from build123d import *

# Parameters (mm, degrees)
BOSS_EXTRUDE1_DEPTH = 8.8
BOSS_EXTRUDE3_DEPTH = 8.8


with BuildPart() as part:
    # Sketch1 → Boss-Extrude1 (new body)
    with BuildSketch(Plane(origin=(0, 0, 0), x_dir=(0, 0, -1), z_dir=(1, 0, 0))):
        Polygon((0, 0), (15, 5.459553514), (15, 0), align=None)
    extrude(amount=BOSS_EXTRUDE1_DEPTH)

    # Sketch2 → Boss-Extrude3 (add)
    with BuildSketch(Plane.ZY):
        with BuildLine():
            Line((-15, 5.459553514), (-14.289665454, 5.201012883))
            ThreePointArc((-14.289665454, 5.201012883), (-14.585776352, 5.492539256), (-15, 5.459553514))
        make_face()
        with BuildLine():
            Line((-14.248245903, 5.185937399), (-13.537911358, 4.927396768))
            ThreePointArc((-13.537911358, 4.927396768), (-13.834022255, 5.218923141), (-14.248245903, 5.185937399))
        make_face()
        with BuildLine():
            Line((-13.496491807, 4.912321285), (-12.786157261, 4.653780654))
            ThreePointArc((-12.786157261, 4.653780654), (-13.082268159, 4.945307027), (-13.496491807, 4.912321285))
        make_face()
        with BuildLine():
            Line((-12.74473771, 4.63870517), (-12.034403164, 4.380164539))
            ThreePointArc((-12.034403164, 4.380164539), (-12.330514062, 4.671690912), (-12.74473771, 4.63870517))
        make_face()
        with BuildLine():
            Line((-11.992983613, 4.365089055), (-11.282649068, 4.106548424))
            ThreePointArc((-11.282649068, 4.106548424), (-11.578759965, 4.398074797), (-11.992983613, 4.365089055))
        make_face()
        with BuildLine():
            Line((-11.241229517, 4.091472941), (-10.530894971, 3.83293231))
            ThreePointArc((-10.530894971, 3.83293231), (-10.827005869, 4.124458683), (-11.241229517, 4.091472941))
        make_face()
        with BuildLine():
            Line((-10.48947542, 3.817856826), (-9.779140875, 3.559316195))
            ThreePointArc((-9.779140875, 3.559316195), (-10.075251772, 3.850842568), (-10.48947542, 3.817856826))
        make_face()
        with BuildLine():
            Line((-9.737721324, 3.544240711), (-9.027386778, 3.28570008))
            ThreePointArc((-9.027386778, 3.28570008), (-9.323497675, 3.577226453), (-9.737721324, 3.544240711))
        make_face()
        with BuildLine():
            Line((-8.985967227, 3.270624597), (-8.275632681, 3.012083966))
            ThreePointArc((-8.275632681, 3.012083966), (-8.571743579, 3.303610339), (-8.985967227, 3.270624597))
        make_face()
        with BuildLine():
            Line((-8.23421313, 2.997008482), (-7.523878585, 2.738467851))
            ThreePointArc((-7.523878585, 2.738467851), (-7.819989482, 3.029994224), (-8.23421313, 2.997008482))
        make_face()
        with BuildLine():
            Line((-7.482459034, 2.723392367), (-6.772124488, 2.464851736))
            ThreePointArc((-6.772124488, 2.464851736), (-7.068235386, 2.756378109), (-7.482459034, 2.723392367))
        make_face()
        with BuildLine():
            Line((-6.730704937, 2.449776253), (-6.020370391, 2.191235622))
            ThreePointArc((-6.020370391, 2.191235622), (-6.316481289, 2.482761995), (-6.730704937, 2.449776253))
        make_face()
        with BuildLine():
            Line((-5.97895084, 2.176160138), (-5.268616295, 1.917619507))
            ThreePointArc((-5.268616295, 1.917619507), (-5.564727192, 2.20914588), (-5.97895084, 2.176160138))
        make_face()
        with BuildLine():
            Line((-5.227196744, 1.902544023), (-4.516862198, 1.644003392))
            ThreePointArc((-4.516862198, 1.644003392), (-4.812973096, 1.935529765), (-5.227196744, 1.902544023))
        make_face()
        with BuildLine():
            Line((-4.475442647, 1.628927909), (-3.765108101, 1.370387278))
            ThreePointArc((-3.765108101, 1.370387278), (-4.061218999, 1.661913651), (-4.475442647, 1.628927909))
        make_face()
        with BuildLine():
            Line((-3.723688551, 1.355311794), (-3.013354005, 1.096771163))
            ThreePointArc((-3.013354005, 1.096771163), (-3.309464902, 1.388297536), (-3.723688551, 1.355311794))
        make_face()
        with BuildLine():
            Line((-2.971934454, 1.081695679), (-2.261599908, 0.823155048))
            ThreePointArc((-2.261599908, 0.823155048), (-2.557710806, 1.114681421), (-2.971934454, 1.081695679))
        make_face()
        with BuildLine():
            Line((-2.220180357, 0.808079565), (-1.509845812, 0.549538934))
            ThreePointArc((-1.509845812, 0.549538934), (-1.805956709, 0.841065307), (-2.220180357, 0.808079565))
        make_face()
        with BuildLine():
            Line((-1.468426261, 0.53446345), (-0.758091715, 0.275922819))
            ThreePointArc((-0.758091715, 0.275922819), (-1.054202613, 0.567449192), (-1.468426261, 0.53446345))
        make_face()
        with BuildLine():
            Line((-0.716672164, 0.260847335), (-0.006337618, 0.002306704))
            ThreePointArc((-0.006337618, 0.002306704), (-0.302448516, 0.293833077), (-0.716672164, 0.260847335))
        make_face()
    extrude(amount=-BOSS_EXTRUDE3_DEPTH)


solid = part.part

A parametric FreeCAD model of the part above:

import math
import FreeCAD as App
import Part
import Sketcher
Q = App.Units.Quantity


def add_polygon(sketch, points):
    """Adds a closed chain of lines whose ends are joined by coincident constraints."""
    first, n = sketch.GeometryCount, len(points)
    for a, b in zip(points, points[1:] + points[:1]):
        sketch.addGeometry(Part.LineSegment(App.Vector(*a, 0), App.Vector(*b, 0)), False)
    for i in range(n):
        sketch.addConstraint(Sketcher.Constraint("Coincident", first + i, 2, first + (i + 1) % n, 1))

doc = App.newDocument("Part")
body = doc.addObject("PartDesign::Body", "Body")

sketch1 = body.newObject("Sketcher::SketchObject", "Sketch")
sketch1.AttachmentSupport = (doc.getObject("YZ_Plane"), [""])
sketch1.MapMode = "FlatFace"
add_polygon(sketch1, [(5, -15), (0, 0), (0, -15)])
sketch1.addConstraint(Sketcher.Constraint("Vertical", 1))
sketch1.addConstraint(Sketcher.Constraint("Horizontal", 2))
sketch1.addConstraint(Sketcher.Constraint("Coincident", 0, 2, -1, 1))
sketch1.addConstraint(Sketcher.Constraint("DistanceY", 1, 2, 1, 1, Q("15 mm")))
sketch1.addConstraint(Sketcher.Constraint("Angle", 0, Q("110 deg")))
pad1 = body.newObject("PartDesign::Pad", "Pad")
pad1.Profile = sketch1
pad1.Length = 8.8

sketch2 = body.newObject("Sketcher::SketchObject", "Sketch001")
sketch2.AttachmentSupport = (doc.getObject("YZ_Plane"), [""])
sketch2.MapMode = "FlatFace"
sketch2.addGeometry(Part.LineSegment(App.Vector(5.46, -15, 0), App.Vector(5.2, -14.29, 0)), False)
sketch2.addGeometry(Part.ArcOfCircle(Part.Circle(App.Vector(5.02, -14.76, 0), App.Vector(0, 0, 1), 0.5), math.radians(-29), math.radians(69)), False)
sketch2.addGeometry(Part.LineSegment(App.Vector(5.19, -14.25, 0), App.Vector(4.93, -13.54, 0)), False)
sketch2.addGeometry(Part.ArcOfCircle(Part.Circle(App.Vector(4.75, -14.01, 0), App.Vector(0, 0, 1), 0.5), math.radians(-29), math.radians(69)), False)
sketch2.addGeometry(Part.LineSegment(App.Vector(4.91, -13.5, 0), App.Vector(4.65, -12.79, 0)), False)
sketch2.addGeometry(Part.ArcOfCircle(Part.Circle(App.Vector(4.48, -13.25, 0), App.Vector(0, 0, 1), 0.5), math.radians(-29), math.radians(69)), False)
sketch2.addGeometry(Part.LineSegment(App.Vector(4.64, -12.74, 0), App.Vector(4.38, -12.03, 0)), False)
sketch2.addGeometry(Part.ArcOfCircle(Part.Circle(App.Vector(4.2, -12.5, 0), App.Vector(0, 0, 1), 0.5), math.radians(-29), math.radians(69)), False)
sketch2.addGeometry(Part.LineSegment(App.Vector(4.37, -11.99, 0), App.Vector(4.11, -11.28, 0)), False)
sketch2.addGeometry(Part.ArcOfCircle(Part.Circle(App.Vector(3.93, -11.75, 0), App.Vector(0, 0, 1), 0.5), math.radians(-29), math.radians(69)), False)
sketch2.addGeometry(Part.LineSegment(App.Vector(4.09, -11.24, 0), App.Vector(3.83, -10.53, 0)), False)
sketch2.addGeometry(Part.ArcOfCircle(Part.Circle(App.Vector(3.65, -11, 0), App.Vector(0, 0, 1), 0.5), math.radians(-29), math.radians(69)), False)
sketch2.addGeometry(Part.LineSegment(App.Vector(3.82, -10.49, 0), App.Vector(3.56, -9.78, 0)), False)
sketch2.addGeometry(Part.ArcOfCircle(Part.Circle(App.Vector(3.38, -10.25, 0), App.Vector(0, 0, 1), 0.5), math.radians(-29), math.radians(69)), False)
sketch2.addGeometry(Part.LineSegment(App.Vector(3.54, -9.74, 0), App.Vector(3.29, -9.03, 0)), False)
sketch2.addGeometry(Part.ArcOfCircle(Part.Circle(App.Vector(3.11, -9.49, 0), App.Vector(0, 0, 1), 0.5), math.radians(-29), math.radians(69)), False)
sketch2.addGeometry(Part.LineSegment(App.Vector(3.27, -8.99, 0), App.Vector(3.01, -8.28, 0)), False)
sketch2.addGeometry(Part.ArcOfCircle(Part.Circle(App.Vector(2.83, -8.74, 0), App.Vector(0, 0, 1), 0.5), math.radians(-29), math.radians(69)), False)
sketch2.addGeometry(Part.LineSegment(App.Vector(3, -8.23, 0), App.Vector(2.74, -7.52, 0)), False)
sketch2.addGeometry(Part.ArcOfCircle(Part.Circle(App.Vector(2.56, -7.99, 0), App.Vector(0, 0, 1), 0.5), math.radians(-29), math.radians(69)), False)
sketch2.addGeometry(Part.LineSegment(App.Vector(2.72, -7.48, 0), App.Vector(2.46, -6.77, 0)), False)
sketch2.addGeometry(Part.ArcOfCircle(Part.Circle(App.Vector(2.29, -7.24, 0), App.Vector(0, 0, 1), 0.5), math.radians(-29), math.radians(69)), False)
sketch2.addGeometry(Part.LineSegment(App.Vector(2.45, -6.73, 0), App.Vector(2.19, -6.02, 0)), False)
sketch2.addGeometry(Part.ArcOfCircle(Part.Circle(App.Vector(2.01, -6.49, 0), App.Vector(0, 0, 1), 0.5), math.radians(-29), math.radians(69)), False)
sketch2.addGeometry(Part.LineSegment(App.Vector(2.18, -5.98, 0), App.Vector(1.92, -5.27, 0)), False)
sketch2.addGeometry(Part.ArcOfCircle(Part.Circle(App.Vector(1.74, -5.74, 0), App.Vector(0, 0, 1), 0.5), math.radians(-29), math.radians(69)), False)
sketch2.addGeometry(Part.LineSegment(App.Vector(1.9, -5.23, 0), App.Vector(1.64, -4.52, 0)), False)
sketch2.addGeometry(Part.ArcOfCircle(Part.Circle(App.Vector(1.47, -4.98, 0), App.Vector(0, 0, 1), 0.5), math.radians(-29), math.radians(69)), False)
sketch2.addGeometry(Part.LineSegment(App.Vector(1.63, -4.48, 0), App.Vector(1.37, -3.77, 0)), False)
sketch2.addGeometry(Part.ArcOfCircle(Part.Circle(App.Vector(1.19, -4.23, 0), App.Vector(0, 0, 1), 0.5), math.radians(-29), math.radians(69)), False)
sketch2.addGeometry(Part.LineSegment(App.Vector(1.36, -3.72, 0), App.Vector(1.1, -3.01, 0)), False)
sketch2.addGeometry(Part.ArcOfCircle(Part.Circle(App.Vector(0.92, -3.48, 0), App.Vector(0, 0, 1), 0.5), math.radians(-29), math.radians(69)), False)
sketch2.addGeometry(Part.LineSegment(App.Vector(1.08, -2.97, 0), App.Vector(0.82, -2.26, 0)), False)
sketch2.addGeometry(Part.ArcOfCircle(Part.Circle(App.Vector(0.64, -2.73, 0), App.Vector(0, 0, 1), 0.5), math.radians(-29), math.radians(69)), False)
sketch2.addGeometry(Part.LineSegment(App.Vector(0.81, -2.22, 0), App.Vector(0.55, -1.51, 0)), False)
sketch2.addGeometry(Part.ArcOfCircle(Part.Circle(App.Vector(0.37, -1.98, 0), App.Vector(0, 0, 1), 0.5), math.radians(-29), math.radians(69)), False)
sketch2.addGeometry(Part.LineSegment(App.Vector(0.53, -1.47, 0), App.Vector(0.28, -0.76, 0)), False)
sketch2.addGeometry(Part.ArcOfCircle(Part.Circle(App.Vector(0.1, -1.23, 0), App.Vector(0, 0, 1), 0.5), math.radians(-29), math.radians(69)), False)
sketch2.addGeometry(Part.LineSegment(App.Vector(0.26, -0.72, 0), App.Vector(0, -0.01, 0)), False)
sketch2.addGeometry(Part.ArcOfCircle(Part.Circle(App.Vector(-0.18, -0.47, 0), App.Vector(0, 0, 1), 0.5), math.radians(-29), math.radians(69)), False)
sketch2.addConstraint(Sketcher.Constraint("Coincident", 0, 1, 1, 1))
sketch2.addConstraint(Sketcher.Constraint("Coincident", 1, 2, 0, 2))
sketch2.addConstraint(Sketcher.Constraint("Coincident", 2, 1, 3, 1))
sketch2.addConstraint(Sketcher.Constraint("Coincident", 3, 2, 2, 2))
sketch2.addConstraint(Sketcher.Constraint("Coincident", 4, 1, 5, 1))
sketch2.addConstraint(Sketcher.Constraint("Coincident", 5, 2, 4, 2))
sketch2.addConstraint(Sketcher.Constraint("Coincident", 6, 1, 7, 1))
sketch2.addConstraint(Sketcher.Constraint("Coincident", 7, 2, 6, 2))
sketch2.addConstraint(Sketcher.Constraint("Coincident", 8, 1, 9, 1))
sketch2.addConstraint(Sketcher.Constraint("Coincident", 9, 2, 8, 2))
sketch2.addConstraint(Sketcher.Constraint("Coincident", 10, 1, 11, 1))
sketch2.addConstraint(Sketcher.Constraint("Coincident", 11, 2, 10, 2))
sketch2.addConstraint(Sketcher.Constraint("Coincident", 12, 1, 13, 1))
sketch2.addConstraint(Sketcher.Constraint("Coincident", 13, 2, 12, 2))
sketch2.addConstraint(Sketcher.Constraint("Coincident", 14, 1, 15, 1))
sketch2.addConstraint(Sketcher.Constraint("Coincident", 15, 2, 14, 2))
sketch2.addConstraint(Sketcher.Constraint("Coincident", 16, 1, 17, 1))
sketch2.addConstraint(Sketcher.Constraint("Coincident", 17, 2, 16, 2))
sketch2.addConstraint(Sketcher.Constraint("Coincident", 18, 1, 19, 1))
sketch2.addConstraint(Sketcher.Constraint("Coincident", 19, 2, 18, 2))
sketch2.addConstraint(Sketcher.Constraint("Coincident", 20, 1, 21, 1))
sketch2.addConstraint(Sketcher.Constraint("Coincident", 21, 2, 20, 2))
sketch2.addConstraint(Sketcher.Constraint("Coincident", 22, 1, 23, 1))
sketch2.addConstraint(Sketcher.Constraint("Coincident", 23, 2, 22, 2))
sketch2.addConstraint(Sketcher.Constraint("Coincident", 24, 1, 25, 1))
sketch2.addConstraint(Sketcher.Constraint("Coincident", 25, 2, 24, 2))
sketch2.addConstraint(Sketcher.Constraint("Coincident", 26, 1, 27, 1))
sketch2.addConstraint(Sketcher.Constraint("Coincident", 27, 2, 26, 2))
sketch2.addConstraint(Sketcher.Constraint("Coincident", 28, 1, 29, 1))
sketch2.addConstraint(Sketcher.Constraint("Coincident", 29, 2, 28, 2))
sketch2.addConstraint(Sketcher.Constraint("Coincident", 30, 1, 31, 1))
sketch2.addConstraint(Sketcher.Constraint("Coincident", 31, 2, 30, 2))
sketch2.addConstraint(Sketcher.Constraint("Coincident", 32, 1, 33, 1))
sketch2.addConstraint(Sketcher.Constraint("Coincident", 33, 2, 32, 2))
sketch2.addConstraint(Sketcher.Constraint("Coincident", 34, 1, 35, 1))
sketch2.addConstraint(Sketcher.Constraint("Coincident", 35, 2, 34, 2))
sketch2.addConstraint(Sketcher.Constraint("Coincident", 36, 1, 37, 1))
sketch2.addConstraint(Sketcher.Constraint("Coincident", 37, 2, 36, 2))
sketch2.addConstraint(Sketcher.Constraint("Coincident", 38, 1, 39, 1))
sketch2.addConstraint(Sketcher.Constraint("Coincident", 39, 2, 38, 2))
sketch2.addConstraint(Sketcher.Constraint("Equal", 1, 3))
sketch2.addConstraint(Sketcher.Constraint("Equal", 3, 5))
sketch2.addConstraint(Sketcher.Constraint("Equal", 5, 7))
sketch2.addConstraint(Sketcher.Constraint("Equal", 7, 9))
sketch2.addConstraint(Sketcher.Constraint("Equal", 9, 11))
sketch2.addConstraint(Sketcher.Constraint("Equal", 11, 13))
sketch2.addConstraint(Sketcher.Constraint("Equal", 13, 15))
sketch2.addConstraint(Sketcher.Constraint("Equal", 15, 17))
sketch2.addConstraint(Sketcher.Constraint("Equal", 17, 19))
sketch2.addConstraint(Sketcher.Constraint("Equal", 19, 21))
sketch2.addConstraint(Sketcher.Constraint("Equal", 21, 23))
sketch2.addConstraint(Sketcher.Constraint("Equal", 23, 25))
sketch2.addConstraint(Sketcher.Constraint("Equal", 25, 27))
sketch2.addConstraint(Sketcher.Constraint("Equal", 27, 29))
sketch2.addConstraint(Sketcher.Constraint("Equal", 29, 31))
sketch2.addConstraint(Sketcher.Constraint("Equal", 31, 33))
sketch2.addConstraint(Sketcher.Constraint("Equal", 33, 35))
sketch2.addConstraint(Sketcher.Constraint("Equal", 35, 37))
sketch2.addConstraint(Sketcher.Constraint("Equal", 37, 39))
sketch2.addConstraint(Sketcher.Constraint("Parallel", 0, 2))
sketch2.addConstraint(Sketcher.Constraint("Parallel", 2, 4))
sketch2.addConstraint(Sketcher.Constraint("Parallel", 4, 6))
sketch2.addConstraint(Sketcher.Constraint("Parallel", 6, 8))
sketch2.addConstraint(Sketcher.Constraint("Parallel", 8, 10))
sketch2.addConstraint(Sketcher.Constraint("Parallel", 10, 12))
sketch2.addConstraint(Sketcher.Constraint("Parallel", 12, 14))
sketch2.addConstraint(Sketcher.Constraint("Parallel", 14, 16))
sketch2.addConstraint(Sketcher.Constraint("Parallel", 16, 18))
sketch2.addConstraint(Sketcher.Constraint("Parallel", 18, 20))
sketch2.addConstraint(Sketcher.Constraint("Parallel", 20, 22))
sketch2.addConstraint(Sketcher.Constraint("Parallel", 22, 24))
sketch2.addConstraint(Sketcher.Constraint("Parallel", 24, 26))
sketch2.addConstraint(Sketcher.Constraint("Parallel", 26, 28))
sketch2.addConstraint(Sketcher.Constraint("Parallel", 28, 30))
sketch2.addConstraint(Sketcher.Constraint("Parallel", 30, 32))
sketch2.addConstraint(Sketcher.Constraint("Parallel", 32, 34))
sketch2.addConstraint(Sketcher.Constraint("Parallel", 34, 36))
sketch2.addConstraint(Sketcher.Constraint("Parallel", 36, 38))
sketch2.addConstraint(Sketcher.Constraint("Equal", 0, 2))
sketch2.addConstraint(Sketcher.Constraint("Equal", 2, 4))
sketch2.addConstraint(Sketcher.Constraint("Equal", 4, 6))
sketch2.addConstraint(Sketcher.Constraint("Equal", 6, 8))
sketch2.addConstraint(Sketcher.Constraint("Equal", 8, 10))
sketch2.addConstraint(Sketcher.Constraint("Equal", 10, 12))
sketch2.addConstraint(Sketcher.Constraint("Equal", 12, 14))
sketch2.addConstraint(Sketcher.Constraint("Equal", 14, 16))
sketch2.addConstraint(Sketcher.Constraint("Equal", 16, 18))
sketch2.addConstraint(Sketcher.Constraint("Equal", 18, 20))
sketch2.addConstraint(Sketcher.Constraint("Equal", 20, 22))
sketch2.addConstraint(Sketcher.Constraint("Equal", 22, 24))
sketch2.addConstraint(Sketcher.Constraint("Equal", 24, 26))
sketch2.addConstraint(Sketcher.Constraint("Equal", 26, 28))
sketch2.addConstraint(Sketcher.Constraint("Equal", 28, 30))
sketch2.addConstraint(Sketcher.Constraint("Equal", 30, 32))
sketch2.addConstraint(Sketcher.Constraint("Equal", 32, 34))
sketch2.addConstraint(Sketcher.Constraint("Equal", 34, 36))
sketch2.addConstraint(Sketcher.Constraint("Equal", 36, 38))
sketch2.addConstraint(Sketcher.Constraint("Radius", 1, Q("0.5 mm")))
sketch2.addConstraint(Sketcher.Constraint("Angle", 0, Q("110 deg")))
sketch2.addConstraint(Sketcher.Constraint("DistanceY", 0, 1, -1, 1, Q("15 mm")))
sketch2.addConstraint(Sketcher.Constraint("DistanceY", 19, 3, -1, 1, Q("7.991 mm")))
sketch2.addConstraint(Sketcher.Constraint("DistanceX", -1, 1, 25, 3, Q("1.7393 mm")))
sketch2.addConstraint(Sketcher.Constraint("DistanceX", -1, 1, 15, 2, Q("3.2857 mm")))
sketch2.addConstraint(Sketcher.Constraint("DistanceY", 33, 2, -1, 1, Q("2.2616 mm")))
sketch2.addConstraint(Sketcher.Constraint("DistanceX", -1, 1, 5, 3, Q("4.475461 mm")))
sketch2.addConstraint(Sketcher.Constraint("DistanceY", 5, 3, -1, 1, Q("13.253278 mm")))
sketch2.addConstraint(Sketcher.Constraint("DistanceX", -1, 1, 9, 3, Q("3.928228 mm")))
sketch2.addConstraint(Sketcher.Constraint("DistanceY", 9, 3, -1, 1, Q("11.74977 mm")))
sketch2.addConstraint(Sketcher.Constraint("DistanceY", 13, 3, -1, 1, Q("10.246262 mm")))
sketch2.addConstraint(Sketcher.Constraint("DistanceX", -1, 1, 15, 3, Q("3.10738 mm")))
sketch2.addConstraint(Sketcher.Constraint("DistanceX", -1, 1, 21, 3, Q("2.286532 mm")))
sketch2.addConstraint(Sketcher.Constraint("DistanceY", 23, 3, -1, 1, Q("6.487491 mm")))
sketch2.addConstraint(Sketcher.Constraint("DistanceY", 29, 3, -1, 1, Q("4.232229 mm")))
sketch2.addConstraint(Sketcher.Constraint("DistanceX", -1, 1, 31, 3, Q("0.918451 mm")))
sketch2.addConstraint(Sketcher.Constraint("DistanceX", -1, 1, 35, 3, Q("0.371219 mm")))
sketch2.addConstraint(Sketcher.Constraint("DistanceY", 39, 3, -1, 1, Q("0.473459 mm")))
sketch2.addConstraint(Sketcher.Constraint("DistanceY", 3, 2, -1, 1, Q("13.537911 mm")))
sketch2.addConstraint(Sketcher.Constraint("DistanceY", 10, 1, -1, 1, Q("11.24123 mm")))
sketch2.addConstraint(Sketcher.Constraint("DistanceY", 14, 1, -1, 1, Q("9.737721 mm")))
sketch2.addConstraint(Sketcher.Constraint("DistanceX", -1, 1, 18, 1, Q("2.997008 mm")))
sketch2.addConstraint(Sketcher.Constraint("DistanceY", 20, 1, -1, 1, Q("7.482459 mm")))
sketch2.addConstraint(Sketcher.Constraint("DistanceY", 24, 1, -1, 1, Q("5.978951 mm")))
sketch2.addConstraint(Sketcher.Constraint("DistanceY", 30, 1, -1, 1, Q("3.723689 mm")))
sketch2.addConstraint(Sketcher.Constraint("DistanceY", 34, 1, -1, 1, Q("2.22018 mm")))
sketch2.addConstraint(Sketcher.Constraint("DistanceY", 37, 2, -1, 1, Q("0.758092 mm")))
sketch2.addConstraint(Sketcher.Constraint("DistanceY", 3, 3, 7, 3, Q("1.503508 mm")))
sketch2.addConstraint(Sketcher.Constraint("DistanceX", 7, 3, 1, 3, Q("0.820848 mm")))
sketch2.addConstraint(Sketcher.Constraint("DistanceX", 9, 3, 3, 3, Q("0.820848 mm")))
sketch2.addConstraint(Sketcher.Constraint("DistanceX", 11, 3, 5, 3, Q("0.820848 mm")))
sketch2.addConstraint(Sketcher.Constraint("DistanceX", 11, 3, 1, 3, Q("1.368081 mm")))
sketch2.addConstraint(Sketcher.Constraint("DistanceX", 13, 3, 7, 3, Q("0.820848 mm")))
sketch2.addConstraint(Sketcher.Constraint("DistanceY", 13, 3, 17, 3, Q("1.503508 mm")))
sketch2.addConstraint(Sketcher.Constraint("DistanceX", 17, 3, 11, 3, Q("0.820848 mm")))
sketch2.addConstraint(Sketcher.Constraint("DistanceX", 23, 3, 17, 3, Q("0.820848 mm")))
sketch2.addConstraint(Sketcher.Constraint("DistanceY", 23, 3, 27, 3, Q("1.503508 mm")))
sketch2.addConstraint(Sketcher.Constraint("DistanceX", 27, 3, 21, 3, Q("0.820848 mm")))
sketch2.addConstraint(Sketcher.Constraint("DistanceX", 29, 3, 23, 3, Q("0.820848 mm")))
sketch2.addConstraint(Sketcher.Constraint("DistanceX", 33, 3, 27, 3, Q("0.820848 mm")))
sketch2.addConstraint(Sketcher.Constraint("DistanceX", 37, 3, 31, 3, Q("0.820848 mm")))
sketch2.addConstraint(Sketcher.Constraint("DistanceX", 39, 3, 33, 3, Q("0.820848 mm")))
pad2 = body.newObject("PartDesign::Pad", "Pad001")
pad2.Profile = sketch2
pad2.Length = 8.8

doc.recompute()
